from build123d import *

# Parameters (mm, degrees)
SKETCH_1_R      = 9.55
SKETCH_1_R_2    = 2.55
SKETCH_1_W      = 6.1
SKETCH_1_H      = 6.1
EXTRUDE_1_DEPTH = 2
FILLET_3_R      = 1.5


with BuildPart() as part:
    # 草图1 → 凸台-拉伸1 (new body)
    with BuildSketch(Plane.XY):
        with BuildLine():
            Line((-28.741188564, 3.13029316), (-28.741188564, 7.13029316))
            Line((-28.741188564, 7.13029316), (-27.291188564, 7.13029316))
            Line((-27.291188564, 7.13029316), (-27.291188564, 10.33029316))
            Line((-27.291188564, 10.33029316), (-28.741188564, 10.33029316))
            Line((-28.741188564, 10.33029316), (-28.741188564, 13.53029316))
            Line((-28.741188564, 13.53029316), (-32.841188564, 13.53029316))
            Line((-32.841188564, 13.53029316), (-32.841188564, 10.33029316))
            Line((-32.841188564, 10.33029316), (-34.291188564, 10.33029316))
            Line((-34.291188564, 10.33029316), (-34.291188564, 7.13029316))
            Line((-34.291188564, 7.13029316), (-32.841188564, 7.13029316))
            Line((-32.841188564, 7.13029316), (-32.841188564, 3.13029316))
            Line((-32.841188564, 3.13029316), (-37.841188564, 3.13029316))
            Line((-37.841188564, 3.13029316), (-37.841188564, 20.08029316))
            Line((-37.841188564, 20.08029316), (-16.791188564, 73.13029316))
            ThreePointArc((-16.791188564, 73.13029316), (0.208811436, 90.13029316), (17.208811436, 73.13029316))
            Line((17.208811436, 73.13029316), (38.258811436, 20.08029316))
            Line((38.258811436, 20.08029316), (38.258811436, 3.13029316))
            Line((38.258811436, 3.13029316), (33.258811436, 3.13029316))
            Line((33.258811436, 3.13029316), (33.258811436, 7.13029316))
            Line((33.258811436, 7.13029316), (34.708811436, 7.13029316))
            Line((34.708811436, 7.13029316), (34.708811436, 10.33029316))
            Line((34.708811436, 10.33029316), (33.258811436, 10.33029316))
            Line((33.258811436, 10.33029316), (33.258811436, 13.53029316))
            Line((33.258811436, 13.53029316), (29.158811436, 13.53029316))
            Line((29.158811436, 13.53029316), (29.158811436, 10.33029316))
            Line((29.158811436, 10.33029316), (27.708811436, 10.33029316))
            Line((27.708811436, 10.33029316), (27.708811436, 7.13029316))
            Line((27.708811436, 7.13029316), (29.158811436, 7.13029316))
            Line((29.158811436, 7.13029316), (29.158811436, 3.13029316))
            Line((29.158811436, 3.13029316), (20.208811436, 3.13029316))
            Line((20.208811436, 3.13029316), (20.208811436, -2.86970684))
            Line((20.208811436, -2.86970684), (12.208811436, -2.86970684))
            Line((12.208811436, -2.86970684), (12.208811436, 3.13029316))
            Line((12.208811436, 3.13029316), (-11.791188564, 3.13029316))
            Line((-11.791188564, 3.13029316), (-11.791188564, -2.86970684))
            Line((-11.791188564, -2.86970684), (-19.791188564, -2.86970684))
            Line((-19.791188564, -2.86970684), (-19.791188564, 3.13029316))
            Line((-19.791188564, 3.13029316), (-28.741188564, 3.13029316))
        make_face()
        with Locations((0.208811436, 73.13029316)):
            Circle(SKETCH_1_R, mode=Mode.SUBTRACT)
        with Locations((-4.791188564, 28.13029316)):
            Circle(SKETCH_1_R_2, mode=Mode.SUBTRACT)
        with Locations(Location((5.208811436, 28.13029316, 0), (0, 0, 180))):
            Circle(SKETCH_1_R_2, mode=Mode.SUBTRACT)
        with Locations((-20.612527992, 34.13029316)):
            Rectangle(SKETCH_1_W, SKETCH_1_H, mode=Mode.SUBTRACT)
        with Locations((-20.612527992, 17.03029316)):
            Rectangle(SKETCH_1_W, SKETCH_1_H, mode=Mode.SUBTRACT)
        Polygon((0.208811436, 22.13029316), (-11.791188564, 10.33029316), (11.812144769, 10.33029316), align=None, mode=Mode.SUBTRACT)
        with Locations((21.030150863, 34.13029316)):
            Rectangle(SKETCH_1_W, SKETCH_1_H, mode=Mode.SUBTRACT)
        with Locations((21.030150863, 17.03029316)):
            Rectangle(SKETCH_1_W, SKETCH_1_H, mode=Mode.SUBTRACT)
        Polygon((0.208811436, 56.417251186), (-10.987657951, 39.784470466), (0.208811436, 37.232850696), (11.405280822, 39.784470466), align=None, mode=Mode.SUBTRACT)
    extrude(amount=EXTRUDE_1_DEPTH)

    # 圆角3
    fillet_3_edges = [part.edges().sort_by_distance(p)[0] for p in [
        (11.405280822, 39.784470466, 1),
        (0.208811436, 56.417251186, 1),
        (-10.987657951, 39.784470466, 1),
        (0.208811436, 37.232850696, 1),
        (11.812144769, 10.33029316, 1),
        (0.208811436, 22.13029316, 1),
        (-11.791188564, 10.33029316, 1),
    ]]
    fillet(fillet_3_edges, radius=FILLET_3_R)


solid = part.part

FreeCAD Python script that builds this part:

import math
import FreeCAD as App
import Part
import Sketcher

V = App.Vector
Q = App.Units.Quantity


def edges_at(feature, points):
    """Names of the edges that pass closest to the given points."""
    edges = feature.Shape.Edges
    near = lambda p: min(range(len(edges)), key=lambda i: edges[i].distToShape(Part.Vertex(*p))[0])
    return sorted({f"Edge{near(p) + 1}" for p in points})

doc = App.newDocument("Part")
body = doc.addObject("PartDesign::Body", "Body")

sketch1 = body.newObject("Sketcher::SketchObject", "Sketch")
sketch1.AttachmentSupport = (doc.getObject("XY_Plane"), [""])
sketch1.MapMode = "FlatFace"
sketch1.addGeometry([
    Part.LineSegment(V(-28.7, 7.1, 0), V(-28.7, 3.1, 0)),
    Part.LineSegment(V(-28.7, 3.1, 0), V(-19.8, 3.1, 0)),
    Part.LineSegment(V(-19.8, 3.1, 0), V(-19.8, -2.9, 0)),
    Part.LineSegment(V(-19.8, -2.9, 0), V(-11.8, -2.9, 0)),
    Part.LineSegment(V(-11.8, -2.9, 0), V(-11.8, 3.1, 0)),
    Part.LineSegment(V(-11.8, 3.1, 0), V(12.2, 3.1, 0)),
    Part.LineSegment(V(12.2, 3.1, 0), V(12.2, -2.9, 0)),
    Part.LineSegment(V(12.2, -2.9, 0), V(20.2, -2.9, 0)),
    Part.LineSegment(V(20.2, -2.9, 0), V(20.2, 3.1, 0)),
    Part.LineSegment(V(20.2, 3.1, 0), V(29.2, 3.1, 0)),
    Part.LineSegment(V(29.2, 3.1, 0), V(29.2, 7.1, 0)),
    Part.LineSegment(V(29.2, 7.1, 0), V(27.7, 7.1, 0)),
    Part.LineSegment(V(27.7, 7.1, 0), V(27.7, 10.3, 0)),
    Part.LineSegment(V(27.7, 10.3, 0), V(29.2, 10.3, 0)),
    Part.LineSegment(V(29.2, 10.3, 0), V(29.2, 13.5, 0)),
    Part.LineSegment(V(29.2, 13.5, 0), V(33.3, 13.5, 0)),
    Part.LineSegment(V(33.3, 13.5, 0), V(33.3, 10.3, 0)),
    Part.LineSegment(V(33.3, 10.3, 0), V(34.7, 10.3, 0)),
    Part.LineSegment(V(34.7, 10.3, 0), V(34.7, 7.1, 0)),
    Part.LineSegment(V(34.7, 7.1, 0), V(33.3, 7.1, 0)),
    Part.LineSegment(V(33.3, 7.1, 0), V(33.3, 3.1, 0)),
    Part.LineSegment(V(33.3, 3.1, 0), V(38.3, 3.1, 0)),
    Part.LineSegment(V(38.3, 3.1, 0), V(38.3, 20.1, 0)),
    Part.LineSegment(V(38.3, 20.1, 0), V(17.2, 73.1, 0)),
    Part.ArcOfCircle(Part.Circle(V(0.2, 73.1, 0), V(0, 0, 1), 17), math.radians(0), math.radians(180)),
    Part.LineSegment(V(-16.8, 73.1, 0), V(-37.8, 20.1, 0)),
    Part.LineSegment(V(-37.8, 20.1, 0), V(-37.8, 3.1, 0)),
    Part.LineSegment(V(-37.8, 3.1, 0), V(-32.8, 3.1, 0)),
    Part.LineSegment(V(-32.8, 3.1, 0), V(-32.8, 7.1, 0)),
    Part.LineSegment(V(-32.8, 7.1, 0), V(-34.3, 7.1, 0)),
    Part.LineSegment(V(-34.3, 7.1, 0), V(-34.3, 10.3, 0)),
    Part.LineSegment(V(-34.3, 10.3, 0), V(-32.8, 10.3, 0)),
    Part.LineSegment(V(-32.8, 10.3, 0), V(-32.8, 13.5, 0)),
    Part.LineSegment(V(-32.8, 13.5, 0), V(-28.7, 13.5, 0)),
    Part.LineSegment(V(-28.7, 13.5, 0), V(-28.7, 10.3, 0)),
    Part.LineSegment(V(-28.7, 10.3, 0), V(-27.3, 10.3, 0)),
    Part.LineSegment(V(-27.3, 10.3, 0), V(-27.3, 7.1, 0)),
    Part.LineSegment(V(-27.3, 7.1, 0), V(-28.7, 7.1, 0)),
    Part.LineSegment(V(18, 14, 0), V(18, 20.1, 0)),
    Part.LineSegment(V(18, 20.1, 0), V(24.1, 20.1, 0)),
    Part.LineSegment(V(24.1, 20.1, 0), V(24.1, 14, 0)),
    Part.LineSegment(V(24.1, 14, 0), V(18, 14, 0)),
    Part.Circle(V(5.2, 28.1, 0), V(0, 0, 1), 2.5),
    Part.LineSegment(V(18, 31.1, 0), V(18, 37.2, 0)),
    Part.LineSegment(V(18, 37.2, 0), V(24.1, 37.2, 0)),
    Part.LineSegment(V(24.1, 37.2, 0), V(24.1, 31.1, 0)),
    Part.LineSegment(V(24.1, 31.1, 0), V(18, 31.1, 0)),
    Part.LineSegment(V(0.2, 22.1, 0), V(11.8, 10.3, 0)),
    Part.LineSegment(V(11.8, 10.3, 0), V(-11.8, 10.3, 0)),
    Part.LineSegment(V(-11.8, 10.3, 0), V(0.2, 22.1, 0)),
    Part.Circle(V(-4.8, 28.1, 0), V(0, 0, 1), 2.5),
    Part.LineSegment(V(-23.7, 14, 0), V(-23.7, 20.1, 0)),
    Part.LineSegment(V(-23.7, 20.1, 0), V(-17.6, 20.1, 0)),
    Part.LineSegment(V(-17.6, 20.1, 0), V(-17.6, 14, 0)),
    Part.LineSegment(V(-17.6, 14, 0), V(-23.7, 14, 0)),
    Part.LineSegment(V(-23.7, 31.1, 0), V(-23.7, 37.2, 0)),
    Part.LineSegment(V(-23.7, 37.2, 0), V(-17.6, 37.2, 0)),
    Part.LineSegment(V(-17.6, 37.2, 0), V(-17.6, 31.1, 0)),
    Part.LineSegment(V(-17.6, 31.1, 0), V(-23.7, 31.1, 0)),
    Part.Circle(V(0.2, 73.1, 0), V(0, 0, 1), 9.6),
    Part.LineSegment(V(0.2, 56.4, 0), V(11.4, 39.8, 0)),
    Part.LineSegment(V(11.4, 39.8, 0), V(0.2, 37.2, 0)),
    Part.LineSegment(V(0.2, 37.2, 0), V(-11, 39.8, 0)),
    Part.LineSegment(V(-11, 39.8, 0), V(0.2, 56.4, 0)),
], False)
sketch1.addConstraint([
    Sketcher.Constraint("Coincident", 0, 2, 1, 1),
    Sketcher.Constraint("Coincident", 1, 2, 2, 1),
    Sketcher.Constraint("Coincident", 2, 2, 3, 1),
    Sketcher.Constraint("Coincident", 3, 2, 4, 1),
    Sketcher.Constraint("Coincident", 4, 2, 5, 1),
    Sketcher.Constraint("Coincident", 5, 2, 6, 1),
    Sketcher.Constraint("Coincident", 6, 2, 7, 1),
    Sketcher.Constraint("Coincident", 7, 2, 8, 1),
    Sketcher.Constraint("Coincident", 8, 2, 9, 1),
    Sketcher.Constraint("Coincident", 9, 2, 10, 1),
    Sketcher.Constraint("Coincident", 10, 2, 11, 1),
    Sketcher.Constraint("Coincident", 11, 2, 12, 1),
    Sketcher.Constraint("Coincident", 12, 2, 13, 1),
    Sketcher.Constraint("Coincident", 13, 2, 14, 1),
    Sketcher.Constraint("Coincident", 14, 2, 15, 1),
    Sketcher.Constraint("Coincident", 15, 2, 16, 1),
    Sketcher.Constraint("Coincident", 16, 2, 17, 1),
    Sketcher.Constraint("Coincident", 17, 2, 18, 1),
    Sketcher.Constraint("Coincident", 18, 2, 19, 1),
    Sketcher.Constraint("Coincident", 19, 2, 20, 1),
    Sketcher.Constraint("Coincident", 20, 2, 21, 1),
    Sketcher.Constraint("Coincident", 21, 2, 22, 1),
    Sketcher.Constraint("Coincident", 22, 2, 23, 1),
    Sketcher.Constraint("Coincident", 23, 2, 24, 1),
    Sketcher.Constraint("Coincident", 24, 2, 25, 1),
    Sketcher.Constraint("Coincident", 25, 2, 26, 1),
    Sketcher.Constraint("Coincident", 26, 2, 27, 1),
    Sketcher.Constraint("Coincident", 27, 2, 28, 1),
    Sketcher.Constraint("Coincident", 28, 2, 29, 1),
    Sketcher.Constraint("Coincident", 29, 2, 30, 1),
    Sketcher.Constraint("Coincident", 30, 2, 31, 1),
    Sketcher.Constraint("Coincident", 31, 2, 32, 1),
    Sketcher.Constraint("Coincident", 32, 2, 33, 1),
    Sketcher.Constraint("Coincident", 33, 2, 34, 1),
    Sketcher.Constraint("Coincident", 34, 2, 35, 1),
    Sketcher.Constraint("Coincident", 35, 2, 36, 1),
    Sketcher.Constraint("Coincident", 36, 2, 37, 1),
    Sketcher.Constraint("Coincident", 37, 2, 0, 1),
    Sketcher.Constraint("Coincident", 38, 2, 39, 1),
    Sketcher.Constraint("Coincident", 39, 2, 40, 1),
    Sketcher.Constraint("Coincident", 40, 2, 41, 1),
    Sketcher.Constraint("Coincident", 41, 2, 38, 1),
    Sketcher.Constraint("Coincident", 43, 2, 44, 1),
    Sketcher.Constraint("Coincident", 44, 2, 45, 1),
    Sketcher.Constraint("Coincident", 45, 2, 46, 1),
    Sketcher.Constraint("Coincident", 46, 2, 43, 1),
    Sketcher.Constraint("Coincident", 47, 2, 48, 1),
    Sketcher.Constraint("Coincident", 48, 2, 49, 1),
    Sketcher.Constraint("Coincident", 49, 2, 47, 1),
    Sketcher.Constraint("Coincident", 51, 2, 52, 1),
    Sketcher.Constraint("Coincident", 52, 2, 53, 1),
    Sketcher.Constraint("Coincident", 53, 2, 54, 1),
    Sketcher.Constraint("Coincident", 54, 2, 51, 1),
    Sketcher.Constraint("Coincident", 55, 2, 56, 1),
    Sketcher.Constraint("Coincident", 56, 2, 57, 1),
    Sketcher.Constraint("Coincident", 57, 2, 58, 1),
    Sketcher.Constraint("Coincident", 58, 2, 55, 1),
    Sketcher.Constraint("Coincident", 60, 2, 61, 1),
    Sketcher.Constraint("Coincident", 61, 2, 62, 1),
    Sketcher.Constraint("Coincident", 62, 2, 63, 1),
    Sketcher.Constraint("Coincident", 63, 2, 60, 1),
    Sketcher.Constraint("Vertical", 0),
    Sketcher.Constraint("Horizontal", 1),
    Sketcher.Constraint("Vertical", 2),
    Sketcher.Constraint("Horizontal", 3),
    Sketcher.Constraint("Vertical", 4),
    Sketcher.Constraint("Horizontal", 5),
    Sketcher.Constraint("Vertical", 6),
    Sketcher.Constraint("Horizontal", 7),
    Sketcher.Constraint("Vertical", 8),
    Sketcher.Constraint("Horizontal", 9),
    Sketcher.Constraint("Vertical", 10),
    Sketcher.Constraint("Horizontal", 11),
    Sketcher.Constraint("Vertical", 12),
    Sketcher.Constraint("Horizontal", 13),
    Sketcher.Constraint("Vertical", 14),
    Sketcher.Constraint("Horizontal", 15),
    Sketcher.Constraint("Vertical", 16),
    Sketcher.Constraint("Horizontal", 17),
    Sketcher.Constraint("Vertical", 18),
    Sketcher.Constraint("Horizontal", 19),
    Sketcher.Constraint("Vertical", 20),
    Sketcher.Constraint("Horizontal", 21),
    Sketcher.Constraint("Vertical", 22),
    Sketcher.Constraint("Vertical", 26),
    Sketcher.Constraint("Horizontal", 27),
    Sketcher.Constraint("Vertical", 28),
    Sketcher.Constraint("Horizontal", 29),
    Sketcher.Constraint("Vertical", 30),
    Sketcher.Constraint("Horizontal", 31),
    Sketcher.Constraint("Vertical", 32),
    Sketcher.Constraint("Horizontal", 33),
    Sketcher.Constraint("Vertical", 34),
    Sketcher.Constraint("Horizontal", 35),
    Sketcher.Constraint("Vertical", 36),
    Sketcher.Constraint("Horizontal", 37),
    Sketcher.Constraint("Vertical", 38),
    Sketcher.Constraint("Horizontal", 39),
    Sketcher.Constraint("Vertical", 40),
    Sketcher.Constraint("Horizontal", 41),
    Sketcher.Constraint("Vertical", 43),
    Sketcher.Constraint("Horizontal", 44),
    Sketcher.Constraint("Vertical", 45),
    Sketcher.Constraint("Horizontal", 46),
    Sketcher.Constraint("Horizontal", 48),
    Sketcher.Constraint("Vertical", 51),
    Sketcher.Constraint("Horizontal", 52),
    Sketcher.Constraint("Vertical", 53),
    Sketcher.Constraint("Horizontal", 54),
    Sketcher.Constraint("Vertical", 55),
    Sketcher.Constraint("Horizontal", 56),
    Sketcher.Constraint("Vertical", 57),
    Sketcher.Constraint("Horizontal", 58),
    Sketcher.Constraint("Coincident", 59, 3, 24, 3),
    Sketcher.Constraint("Equal", 42, 50),
    Sketcher.Constraint("Perpendicular", 47, 49),
    Sketcher.Constraint("Horizontal", 42, 3, 50, 3),
    Sketcher.Constraint("Horizontal", 1, 2, 4, 2),
    Sketcher.Constraint("Horizontal", 3, 2, 6, 2),
    Sketcher.Constraint("Horizontal", 5, 2, 8, 2),
    Sketcher.Constraint("Horizontal", 13, 2, 16, 2),
    Sketcher.Constraint("Horizontal", 11, 2, 18, 2),
    Sketcher.Constraint("Horizontal", 9, 2, 20, 2),
    Sketcher.Constraint("Horizontal", 59, 3, 23, 2),
    Sketcher.Constraint("Horizontal", 23, 2, 24, 2),
    Sketcher.Constraint("Horizontal", 22, 2, 25, 2),
    Sketcher.Constraint("Horizontal", 21, 2, 26, 2),
    Sketcher.Constraint("Horizontal", 19, 2, 28, 2),
    Sketcher.Constraint("Horizontal", 17, 2, 30, 2),
    Sketcher.Constraint("Horizontal", 15, 2, 32, 2),
    Sketcher.Constraint("Horizontal", 31, 2, 34, 2),
    Sketcher.Constraint("Horizontal", 29, 2, 36, 2),
    Sketcher.Constraint("Horizontal", 25, 2, 38, 2),
    Sketcher.Constraint("Horizontal", 35, 2, 47, 2),
    Sketcher.Constraint("Horizontal", 39, 2, 51, 2),
    Sketcher.Constraint("Horizontal", 41, 2, 53, 2),
    Sketcher.Constraint("Horizontal", 44, 2, 55, 2),
    Sketcher.Constraint("Horizontal", 46, 2, 57, 2),
    Sketcher.Constraint("Horizontal", 60, 2, 62, 2),
    Sketcher.Constraint("Vertical", 10, 2, 13, 2),
    Sketcher.Constraint("Vertical", 16, 2, 19, 2),
    Sketcher.Constraint("Vertical", 28, 2, 31, 2),
    Sketcher.Constraint("Vertical", 0, 2, 33, 2),
    Sketcher.Constraint("Vertical", 41, 2, 43, 2),
    Sketcher.Constraint("Vertical", 40, 2, 44, 2),
    Sketcher.Constraint("Vertical", 4, 2, 48, 2),
    Sketcher.Constraint("Vertical", 59, 3, 49, 2),
    Sketcher.Constraint("Vertical", 54, 2, 55, 2),
    Sketcher.Constraint("Vertical", 53, 2, 56, 2),
    Sketcher.Constraint("Vertical", 49, 2, 61, 2),
    Sketcher.Constraint("Vertical", 61, 2, 63, 2),
    Sketcher.Constraint("Equal", 3, 7),
    Sketcher.Constraint("Equal", 1, 9),
    Sketcher.Constraint("Equal", 13, 17),
    Sketcher.Constraint("Equal", 21, 27),
    Sketcher.Constraint("Equal", 19, 29),
    Sketcher.Constraint("Equal", 15, 33),
    Sketcher.Constraint("Equal", 31, 35),
    Sketcher.Constraint("Equal", 46, 52),
    Sketcher.Constraint("Equal", 12, 14),
    Sketcher.Constraint("Equal", 58, 38),
    Sketcher.Constraint("Equal", 40, 43),
    Sketcher.Constraint("Equal", 23, 25),
    Sketcher.Constraint("Equal", 61, 62),
    Sketcher.Constraint("Radius", 24, Q("17 mm")),
    Sketcher.Constraint("Diameter", 42, Q("5.1 mm")),
    Sketcher.Constraint("Diameter", 59, Q("19.1 mm")),
    Sketcher.Constraint("DistanceX", 3, 1, 3, 2, Q("8 mm")),
    Sketcher.Constraint("DistanceX", 5, 1, 5, 2, Q("24 mm")),
    Sketcher.Constraint("DistanceX", 21, 1, 21, 2, Q("5 mm")),
    Sketcher.Constraint("DistanceY", 0, 2, 0, 1, Q("4 mm")),
    Sketcher.Constraint("DistanceY", 2, 2, 2, 1, Q("6 mm")),
    Sketcher.Constraint("DistanceX", 15, 1, 15, 2, Q("4.1 mm")),
    Sketcher.Constraint("DistanceX", 39, 1, 39, 2, Q("6.1 mm")),
    Sketcher.Constraint("DistanceY", 12, 1, 12, 2, Q("3.2 mm")),
    Sketcher.Constraint("DistanceX", 1, 1, 1, 2, Q("8.95 mm")),
    Sketcher.Constraint("DistanceX", 11, 2, 11, 1, Q("1.45 mm")),
    Sketcher.Constraint("DistanceY", 22, 1, 22, 2, Q("16.95 mm")),
    Sketcher.Constraint("Distance", 23, Q("57.07368 mm")),
    Sketcher.Constraint("Distance", 47, Q("16.54924 mm")),
    Sketcher.Constraint("Distance", 61, Q("11.48354 mm")),
    Sketcher.Constraint("DistanceX", -1, 1, 24, 3, Q("0.208811 mm")),
    Sketcher.Constraint("DistanceX", -1, 1, 42, 3, Q("5.208811 mm")),
    Sketcher.Constraint("DistanceX", 50, 3, -1, 1, Q("4.791189 mm")),
    Sketcher.Constraint("DistanceX", -1, 1, 38, 2, Q("17.980151 mm")),
    Sketcher.Constraint("DistanceX", -1, 1, 60, 2, Q("11.405281 mm")),
    Sketcher.Constraint("DistanceY", -1, 1, 60, 2, Q("39.78447 mm")),
    Sketcher.Constraint("DistanceY", -1, 1, 63, 2, Q("56.417251 mm")),
    Sketcher.Constraint("DistanceY", -1, 1, 24, 3, Q("73.130293 mm")),
    Sketcher.Constraint("DistanceY", -1, 1, 42, 3, Q("28.130293 mm")),
    Sketcher.Constraint("DistanceY", -1, 1, 43, 2, Q("37.180293 mm")),
    Sketcher.Constraint("DistanceX", 51, 2, -1, 1, Q("23.662528 mm")),
])
pad1 = body.newObject("PartDesign::Pad", "Pad")
pad1.Profile = sketch1
pad1.Length = 2
doc.recompute()

fillet = body.newObject("PartDesign::Fillet", "Fillet")
fillet.Base = (pad1, edges_at(pad1, [
    (11.405, 39.784, 1),
    (0.209, 56.417, 1),
    (-10.988, 39.784, 1),
    (0.209, 37.233, 1),
    (11.812, 10.33, 1),
    (0.209, 22.13, 1),
    (-11.791, 10.33, 1),
]))
fillet.Radius = 1.5

doc.recompute()
